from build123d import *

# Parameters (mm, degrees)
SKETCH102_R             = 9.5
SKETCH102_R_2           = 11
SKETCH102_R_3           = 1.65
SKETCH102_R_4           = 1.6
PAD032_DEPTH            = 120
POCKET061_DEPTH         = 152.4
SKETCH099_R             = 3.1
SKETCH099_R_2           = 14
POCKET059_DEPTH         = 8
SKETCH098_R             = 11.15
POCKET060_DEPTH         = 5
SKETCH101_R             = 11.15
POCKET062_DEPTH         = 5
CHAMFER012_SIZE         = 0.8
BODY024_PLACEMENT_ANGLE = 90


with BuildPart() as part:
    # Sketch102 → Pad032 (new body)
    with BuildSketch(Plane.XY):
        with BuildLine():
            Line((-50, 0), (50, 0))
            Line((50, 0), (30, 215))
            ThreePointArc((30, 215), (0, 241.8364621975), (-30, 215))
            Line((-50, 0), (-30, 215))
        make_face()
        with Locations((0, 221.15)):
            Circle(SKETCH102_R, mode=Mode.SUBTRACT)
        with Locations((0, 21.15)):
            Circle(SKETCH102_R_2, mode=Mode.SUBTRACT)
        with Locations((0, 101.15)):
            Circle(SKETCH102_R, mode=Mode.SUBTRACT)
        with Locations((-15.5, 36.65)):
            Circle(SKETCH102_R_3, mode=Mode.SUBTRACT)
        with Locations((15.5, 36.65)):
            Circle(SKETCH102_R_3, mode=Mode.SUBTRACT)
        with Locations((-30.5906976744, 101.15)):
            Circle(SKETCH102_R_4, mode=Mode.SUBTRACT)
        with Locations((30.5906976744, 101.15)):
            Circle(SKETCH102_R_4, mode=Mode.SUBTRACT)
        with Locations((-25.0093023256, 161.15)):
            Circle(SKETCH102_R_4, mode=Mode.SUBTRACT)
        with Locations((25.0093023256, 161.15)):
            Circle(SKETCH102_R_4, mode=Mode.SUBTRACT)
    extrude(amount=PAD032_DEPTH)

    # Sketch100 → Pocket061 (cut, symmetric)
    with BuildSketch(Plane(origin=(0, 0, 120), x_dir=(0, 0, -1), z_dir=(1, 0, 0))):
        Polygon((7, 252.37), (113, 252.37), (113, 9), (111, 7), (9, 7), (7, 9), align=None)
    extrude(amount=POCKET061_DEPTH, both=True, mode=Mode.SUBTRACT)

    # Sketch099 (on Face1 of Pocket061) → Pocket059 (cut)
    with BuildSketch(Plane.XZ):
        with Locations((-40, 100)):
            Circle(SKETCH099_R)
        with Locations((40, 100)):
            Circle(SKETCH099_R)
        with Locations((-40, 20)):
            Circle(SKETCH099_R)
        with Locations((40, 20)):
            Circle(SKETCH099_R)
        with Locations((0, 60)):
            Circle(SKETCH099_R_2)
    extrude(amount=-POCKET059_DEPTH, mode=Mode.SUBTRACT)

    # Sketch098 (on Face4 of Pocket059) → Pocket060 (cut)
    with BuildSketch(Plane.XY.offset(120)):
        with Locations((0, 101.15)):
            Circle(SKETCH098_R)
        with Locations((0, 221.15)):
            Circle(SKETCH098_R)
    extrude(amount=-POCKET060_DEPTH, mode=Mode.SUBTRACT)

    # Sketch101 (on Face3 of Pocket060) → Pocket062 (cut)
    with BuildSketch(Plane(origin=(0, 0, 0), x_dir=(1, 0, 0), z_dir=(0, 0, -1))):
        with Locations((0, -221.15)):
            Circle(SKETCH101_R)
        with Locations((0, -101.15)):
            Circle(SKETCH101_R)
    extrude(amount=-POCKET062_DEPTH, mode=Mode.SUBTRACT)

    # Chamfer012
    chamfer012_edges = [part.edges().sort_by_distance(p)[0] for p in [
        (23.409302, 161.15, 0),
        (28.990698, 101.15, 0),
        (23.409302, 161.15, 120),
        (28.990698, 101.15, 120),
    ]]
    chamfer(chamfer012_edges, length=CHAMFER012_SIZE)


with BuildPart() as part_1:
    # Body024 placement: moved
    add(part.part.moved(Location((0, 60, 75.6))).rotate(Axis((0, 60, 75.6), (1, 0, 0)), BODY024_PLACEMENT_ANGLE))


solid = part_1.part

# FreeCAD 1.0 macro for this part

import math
import FreeCAD as App
import Part
import Sketcher
Q = App.Units.Quantity


def edges_at(feature, points):
    """Names of the edges that pass closest to the given points."""
    edges = feature.Shape.Edges
    near = lambda p: min(range(len(edges)), key=lambda i: edges[i].distToShape(Part.Vertex(*p))[0])
    return sorted({f"Edge{near(p) + 1}" for p in points})

doc = App.newDocument("Part")
body = doc.addObject("PartDesign::Body", "Body")

sketch1 = body.newObject("Sketcher::SketchObject", "Sketch")
sketch1.AttachmentSupport = (doc.getObject("XY_Plane"), [""])
sketch1.MapMode = "FlatFace"
sketch1.addGeometry([
    Part.LineSegment(App.Vector(-50, 0, 0), App.Vector(50, 0, 0)),
    Part.LineSegment(App.Vector(50, 0, 0), App.Vector(30, 215, 0)),
    Part.ArcOfCircle(Part.Circle(App.Vector(0, 211.65, 0), App.Vector(0, 0, 1), 30.186462), math.radians(6.371633), math.radians(173.628367)),
    Part.LineSegment(App.Vector(-30, 215, 0), App.Vector(-50, 0, 0)),
    Part.Circle(App.Vector(-15.5, 36.65, 0), App.Vector(0, 0, 1), 1.65),
    Part.Circle(App.Vector(-30.590698, 101.15, 0), App.Vector(0, 0, 1), 1.6),
    Part.Circle(App.Vector(0, 21.15, 0), App.Vector(0, 0, 1), 11),
    Part.Circle(App.Vector(15.5, 36.65, 0), App.Vector(0, 0, 1), 1.65),
    Part.Circle(App.Vector(0, 101.15, 0), App.Vector(0, 0, 1), 9.5),
    Part.Circle(App.Vector(30.590698, 101.15, 0), App.Vector(0, 0, 1), 1.6),
    Part.Circle(App.Vector(-25.009302, 161.15, 0), App.Vector(0, 0, 1), 1.6),
    Part.Circle(App.Vector(25.009302, 161.15, 0), App.Vector(0, 0, 1), 1.6),
    Part.Circle(App.Vector(0, 221.15, 0), App.Vector(0, 0, 1), 9.5),
], False)
sketch1.addConstraint([
    Sketcher.Constraint("Coincident", 0, 2, 1, 1),
    Sketcher.Constraint("Coincident", 1, 2, 2, 1),
    Sketcher.Constraint("Coincident", 2, 2, 3, 1),
    Sketcher.Constraint("Coincident", 3, 2, 0, 1),
    Sketcher.Constraint("Horizontal", 0),
    Sketcher.Constraint("Equal", 4, 7),
    Sketcher.Constraint("Equal", 5, 9),
    Sketcher.Constraint("Equal", 9, 10),
    Sketcher.Constraint("Equal", 10, 11),
    Sketcher.Constraint("Equal", 8, 12),
    Sketcher.Constraint("Symmetric", 0, 2, 3, 2, -1, 1),
    Sketcher.Constraint("Symmetric", 4, 3, 7, 3, -2),
    Sketcher.Constraint("Symmetric", 5, 3, 9, 3, -2),
    Sketcher.Constraint("Symmetric", 10, 3, 11, 3, -2),
    Sketcher.Constraint("Symmetric", 1, 2, 2, 2, -2),
    Sketcher.Constraint("PointOnObject", 6, 3, -2),
    Sketcher.Constraint("PointOnObject", 8, 3, -2),
    Sketcher.Constraint("PointOnObject", 12, 3, -2),
    Sketcher.Constraint("Horizontal", 5, 3, 8, 3),
    Sketcher.Constraint("Diameter", 6, Q("22 mm")),
    Sketcher.Constraint("Diameter", 8, Q("19 mm")),
    Sketcher.Constraint("Diameter", 4, Q("3.3 mm")),
    Sketcher.Constraint("Diameter", 5, Q("3.2 mm")),
    Sketcher.Constraint("DistanceX", 0, 1, 0, 2, Q("100 mm")),
    Sketcher.Constraint("DistanceX", -1, 1, 1, 2, Q("30 mm")),
    Sketcher.Constraint("DistanceY", -1, 1, 1, 2, Q("215 mm")),
    Sketcher.Constraint("DistanceY", 4, 3, 2, 3, Q("175 mm")),
    Sketcher.Constraint("DistanceY", 6, 3, 5, 3, Q("80 mm")),
    Sketcher.Constraint("DistanceX", 4, 3, 7, 3, Q("31 mm")),
    Sketcher.Constraint("DistanceY", 5, 3, 10, 3, Q("60 mm")),
    Sketcher.Constraint("DistanceY", 10, 3, 12, 3, Q("60 mm")),
    Sketcher.Constraint("DistanceY", 4, 3, 5, 3, Q("64.5 mm")),
    Sketcher.Constraint("DistanceX", 10, 3, 9, 3, Q("55.6 mm")),
    Sketcher.Constraint("DistanceY", -1, 1, 2, 3, Q("211.65 mm")),
    Sketcher.Constraint("DistanceX", 5, 3, -1, 1, Q("30.590698 mm")),
])
pad1 = body.newObject("PartDesign::Pad", "Pad")
pad1.Profile = sketch1
pad1.Length = 120

sketch2 = body.newObject("Sketcher::SketchObject", "Sketch001")
sketch2.AttachmentSupport = (doc.getObject("YZ_Plane"), [""])
sketch2.MapMode = "FlatFace"
sketch2.addGeometry([
    Part.LineSegment(App.Vector(252.37, 7, 0), App.Vector(252.37, 113, 0)),
    Part.LineSegment(App.Vector(252.37, 113, 0), App.Vector(9, 113, 0)),
    Part.LineSegment(App.Vector(9, 113, 0), App.Vector(7, 111, 0)),
    Part.LineSegment(App.Vector(7, 111, 0), App.Vector(7, 9, 0)),
    Part.LineSegment(App.Vector(7, 9, 0), App.Vector(9, 7, 0)),
    Part.LineSegment(App.Vector(9, 7, 0), App.Vector(252.37, 7, 0)),
], False)
sketch2.addConstraint([
    Sketcher.Constraint("Coincident", 0, 2, 1, 1),
    Sketcher.Constraint("Coincident", 1, 2, 2, 1),
    Sketcher.Constraint("Coincident", 2, 2, 3, 1),
    Sketcher.Constraint("Coincident", 3, 2, 4, 1),
    Sketcher.Constraint("Coincident", 4, 2, 5, 1),
    Sketcher.Constraint("Coincident", 5, 2, 0, 1),
    Sketcher.Constraint("Vertical", 0),
    Sketcher.Constraint("Horizontal", 1),
    Sketcher.Constraint("Vertical", 3),
    Sketcher.Constraint("Horizontal", 5),
    Sketcher.Constraint("Perpendicular", 2, 4),
    Sketcher.Constraint("Vertical", 1, 2, 4, 2),
    Sketcher.Constraint("Equal", 2, 4),
    Sketcher.Constraint("DistanceY", 0, 1, 0, 2, Q("106 mm")),
    Sketcher.Constraint("DistanceY", 3, 2, 3, 1, Q("102 mm")),
    Sketcher.Constraint("DistanceY", -1, 1, 0, 2, Q("113 mm")),
    Sketcher.Constraint("DistanceX", -1, 1, 1, 2, Q("9 mm")),
    Sketcher.Constraint("DistanceX", 1, 2, 1, 1, Q("243.37 mm")),
])
pocket1 = body.newObject("PartDesign::Pocket", "Pocket")
pocket1.Profile = sketch2
pocket1.Length = 304.8
pocket1.Midplane = True

sketch3 = body.newObject("Sketcher::SketchObject", "Sketch002")
sketch3.AttachmentSupport = (doc.getObject("XZ_Plane"), [""])
sketch3.MapMode = "FlatFace"
sketch3.addGeometry([
    Part.Circle(App.Vector(-40, 100, 0), App.Vector(0, 0, 1), 3.1),
    Part.Circle(App.Vector(40, 100, 0), App.Vector(0, 0, 1), 3.1),
    Part.Circle(App.Vector(-40, 20, 0), App.Vector(0, 0, 1), 3.1),
    Part.Circle(App.Vector(40, 20, 0), App.Vector(0, 0, 1), 3.1),
    Part.Circle(App.Vector(0, 60, 0), App.Vector(0, 0, 1), 14),
], False)
sketch3.addConstraint([
    Sketcher.Constraint("Equal", 0, 1),
    Sketcher.Constraint("Equal", 1, 2),
    Sketcher.Constraint("Equal", 2, 3),
    Sketcher.Constraint("Symmetric", 0, 3, 1, 3, -2),
    Sketcher.Constraint("Symmetric", 2, 3, 3, 3, -2),
    Sketcher.Constraint("PointOnObject", 4, 3, -2),
    Sketcher.Constraint("Vertical", 0, 3, 2, 3),
    Sketcher.Constraint("Diameter", 4, Q("28 mm")),
    Sketcher.Constraint("Diameter", 0, Q("6.2 mm")),
    Sketcher.Constraint("DistanceX", 0, 3, -1, 1, Q("40 mm")),
    Sketcher.Constraint("DistanceY", -1, 1, 0, 3, Q("100 mm")),
    Sketcher.Constraint("DistanceY", -1, 1, 2, 3, Q("20 mm")),
    Sketcher.Constraint("DistanceY", -1, 1, 4, 3, Q("60 mm")),
])
pocket2 = body.newObject("PartDesign::Pocket", "Pocket001")
pocket2.Profile = sketch3
pocket2.Length = 8

sketch4 = body.newObject("Sketcher::SketchObject", "Sketch003")
sketch4.AttachmentSupport = (doc.getObject("XY_Plane"), [""])
sketch4.MapMode = "FlatFace"
sketch4.AttachmentOffset = App.Placement(App.Vector(0, 0, 120), App.Rotation())
sketch4.addGeometry([
    Part.Circle(App.Vector(0, 101.15, 0), App.Vector(0, 0, 1), 11.15),
    Part.Circle(App.Vector(0, 221.15, 0), App.Vector(0, 0, 1), 11.15),
], False)
sketch4.addConstraint([
    Sketcher.Constraint("Equal", 0, 1),
    Sketcher.Constraint("PointOnObject", 0, 3, -2),
    Sketcher.Constraint("PointOnObject", 1, 3, -2),
    Sketcher.Constraint("Diameter", 0, Q("22.3 mm")),
    Sketcher.Constraint("DistanceY", 0, 3, 1, 3, Q("120 mm")),
    Sketcher.Constraint("DistanceY", -1, 1, 0, 3, Q("101.15 mm")),
])
pocket3 = body.newObject("PartDesign::Pocket", "Pocket002")
pocket3.Profile = sketch4
pocket3.Length = 5

sketch5 = body.newObject("Sketcher::SketchObject", "Sketch004")
sketch5.AttachmentSupport = (doc.getObject("XY_Plane"), [""])
sketch5.MapMode = "FlatFace"
sketch5.addGeometry([
    Part.Circle(App.Vector(0, 221.15, 0), App.Vector(0, 0, 1), 11.15),
    Part.Circle(App.Vector(0, 101.15, 0), App.Vector(0, 0, 1), 11.15),
], False)
sketch5.addConstraint([
    Sketcher.Constraint("Equal", 0, 1),
    Sketcher.Constraint("PointOnObject", 0, 3, -2),
    Sketcher.Constraint("PointOnObject", 1, 3, -2),
    Sketcher.Constraint("Diameter", 0, Q("22.3 mm")),
    Sketcher.Constraint("DistanceY", 1, 3, 0, 3, Q("120 mm")),
    Sketcher.Constraint("DistanceY", -1, 1, 0, 3, Q("221.15 mm")),
])
pocket4 = body.newObject("PartDesign::Pocket", "Pocket003")
pocket4.Profile = sketch5
pocket4.Length = 5
pocket4.Reversed = True
doc.recompute()

chamfer = body.newObject("PartDesign::Chamfer", "Chamfer")
chamfer.Base = (pocket4, edges_at(pocket4, [
    (23.409, 161.15, 0),
    (28.991, 101.15, 0),
    (23.409, 161.15, 120),
    (28.991, 101.15, 120),
]))
chamfer.Size = 0.8
body2 = doc.addObject("PartDesign::Body", "Body001")
doc.recompute()

body.Placement = App.Placement(App.Vector(0, 60, 75.6), App.Rotation(App.Vector(1, 0, 0), 90))
boolean = body2.newObject("PartDesign::Boolean", "Boolean")
boolean.Type = "Fuse"
boolean.addObjects([body])

doc.recompute()
